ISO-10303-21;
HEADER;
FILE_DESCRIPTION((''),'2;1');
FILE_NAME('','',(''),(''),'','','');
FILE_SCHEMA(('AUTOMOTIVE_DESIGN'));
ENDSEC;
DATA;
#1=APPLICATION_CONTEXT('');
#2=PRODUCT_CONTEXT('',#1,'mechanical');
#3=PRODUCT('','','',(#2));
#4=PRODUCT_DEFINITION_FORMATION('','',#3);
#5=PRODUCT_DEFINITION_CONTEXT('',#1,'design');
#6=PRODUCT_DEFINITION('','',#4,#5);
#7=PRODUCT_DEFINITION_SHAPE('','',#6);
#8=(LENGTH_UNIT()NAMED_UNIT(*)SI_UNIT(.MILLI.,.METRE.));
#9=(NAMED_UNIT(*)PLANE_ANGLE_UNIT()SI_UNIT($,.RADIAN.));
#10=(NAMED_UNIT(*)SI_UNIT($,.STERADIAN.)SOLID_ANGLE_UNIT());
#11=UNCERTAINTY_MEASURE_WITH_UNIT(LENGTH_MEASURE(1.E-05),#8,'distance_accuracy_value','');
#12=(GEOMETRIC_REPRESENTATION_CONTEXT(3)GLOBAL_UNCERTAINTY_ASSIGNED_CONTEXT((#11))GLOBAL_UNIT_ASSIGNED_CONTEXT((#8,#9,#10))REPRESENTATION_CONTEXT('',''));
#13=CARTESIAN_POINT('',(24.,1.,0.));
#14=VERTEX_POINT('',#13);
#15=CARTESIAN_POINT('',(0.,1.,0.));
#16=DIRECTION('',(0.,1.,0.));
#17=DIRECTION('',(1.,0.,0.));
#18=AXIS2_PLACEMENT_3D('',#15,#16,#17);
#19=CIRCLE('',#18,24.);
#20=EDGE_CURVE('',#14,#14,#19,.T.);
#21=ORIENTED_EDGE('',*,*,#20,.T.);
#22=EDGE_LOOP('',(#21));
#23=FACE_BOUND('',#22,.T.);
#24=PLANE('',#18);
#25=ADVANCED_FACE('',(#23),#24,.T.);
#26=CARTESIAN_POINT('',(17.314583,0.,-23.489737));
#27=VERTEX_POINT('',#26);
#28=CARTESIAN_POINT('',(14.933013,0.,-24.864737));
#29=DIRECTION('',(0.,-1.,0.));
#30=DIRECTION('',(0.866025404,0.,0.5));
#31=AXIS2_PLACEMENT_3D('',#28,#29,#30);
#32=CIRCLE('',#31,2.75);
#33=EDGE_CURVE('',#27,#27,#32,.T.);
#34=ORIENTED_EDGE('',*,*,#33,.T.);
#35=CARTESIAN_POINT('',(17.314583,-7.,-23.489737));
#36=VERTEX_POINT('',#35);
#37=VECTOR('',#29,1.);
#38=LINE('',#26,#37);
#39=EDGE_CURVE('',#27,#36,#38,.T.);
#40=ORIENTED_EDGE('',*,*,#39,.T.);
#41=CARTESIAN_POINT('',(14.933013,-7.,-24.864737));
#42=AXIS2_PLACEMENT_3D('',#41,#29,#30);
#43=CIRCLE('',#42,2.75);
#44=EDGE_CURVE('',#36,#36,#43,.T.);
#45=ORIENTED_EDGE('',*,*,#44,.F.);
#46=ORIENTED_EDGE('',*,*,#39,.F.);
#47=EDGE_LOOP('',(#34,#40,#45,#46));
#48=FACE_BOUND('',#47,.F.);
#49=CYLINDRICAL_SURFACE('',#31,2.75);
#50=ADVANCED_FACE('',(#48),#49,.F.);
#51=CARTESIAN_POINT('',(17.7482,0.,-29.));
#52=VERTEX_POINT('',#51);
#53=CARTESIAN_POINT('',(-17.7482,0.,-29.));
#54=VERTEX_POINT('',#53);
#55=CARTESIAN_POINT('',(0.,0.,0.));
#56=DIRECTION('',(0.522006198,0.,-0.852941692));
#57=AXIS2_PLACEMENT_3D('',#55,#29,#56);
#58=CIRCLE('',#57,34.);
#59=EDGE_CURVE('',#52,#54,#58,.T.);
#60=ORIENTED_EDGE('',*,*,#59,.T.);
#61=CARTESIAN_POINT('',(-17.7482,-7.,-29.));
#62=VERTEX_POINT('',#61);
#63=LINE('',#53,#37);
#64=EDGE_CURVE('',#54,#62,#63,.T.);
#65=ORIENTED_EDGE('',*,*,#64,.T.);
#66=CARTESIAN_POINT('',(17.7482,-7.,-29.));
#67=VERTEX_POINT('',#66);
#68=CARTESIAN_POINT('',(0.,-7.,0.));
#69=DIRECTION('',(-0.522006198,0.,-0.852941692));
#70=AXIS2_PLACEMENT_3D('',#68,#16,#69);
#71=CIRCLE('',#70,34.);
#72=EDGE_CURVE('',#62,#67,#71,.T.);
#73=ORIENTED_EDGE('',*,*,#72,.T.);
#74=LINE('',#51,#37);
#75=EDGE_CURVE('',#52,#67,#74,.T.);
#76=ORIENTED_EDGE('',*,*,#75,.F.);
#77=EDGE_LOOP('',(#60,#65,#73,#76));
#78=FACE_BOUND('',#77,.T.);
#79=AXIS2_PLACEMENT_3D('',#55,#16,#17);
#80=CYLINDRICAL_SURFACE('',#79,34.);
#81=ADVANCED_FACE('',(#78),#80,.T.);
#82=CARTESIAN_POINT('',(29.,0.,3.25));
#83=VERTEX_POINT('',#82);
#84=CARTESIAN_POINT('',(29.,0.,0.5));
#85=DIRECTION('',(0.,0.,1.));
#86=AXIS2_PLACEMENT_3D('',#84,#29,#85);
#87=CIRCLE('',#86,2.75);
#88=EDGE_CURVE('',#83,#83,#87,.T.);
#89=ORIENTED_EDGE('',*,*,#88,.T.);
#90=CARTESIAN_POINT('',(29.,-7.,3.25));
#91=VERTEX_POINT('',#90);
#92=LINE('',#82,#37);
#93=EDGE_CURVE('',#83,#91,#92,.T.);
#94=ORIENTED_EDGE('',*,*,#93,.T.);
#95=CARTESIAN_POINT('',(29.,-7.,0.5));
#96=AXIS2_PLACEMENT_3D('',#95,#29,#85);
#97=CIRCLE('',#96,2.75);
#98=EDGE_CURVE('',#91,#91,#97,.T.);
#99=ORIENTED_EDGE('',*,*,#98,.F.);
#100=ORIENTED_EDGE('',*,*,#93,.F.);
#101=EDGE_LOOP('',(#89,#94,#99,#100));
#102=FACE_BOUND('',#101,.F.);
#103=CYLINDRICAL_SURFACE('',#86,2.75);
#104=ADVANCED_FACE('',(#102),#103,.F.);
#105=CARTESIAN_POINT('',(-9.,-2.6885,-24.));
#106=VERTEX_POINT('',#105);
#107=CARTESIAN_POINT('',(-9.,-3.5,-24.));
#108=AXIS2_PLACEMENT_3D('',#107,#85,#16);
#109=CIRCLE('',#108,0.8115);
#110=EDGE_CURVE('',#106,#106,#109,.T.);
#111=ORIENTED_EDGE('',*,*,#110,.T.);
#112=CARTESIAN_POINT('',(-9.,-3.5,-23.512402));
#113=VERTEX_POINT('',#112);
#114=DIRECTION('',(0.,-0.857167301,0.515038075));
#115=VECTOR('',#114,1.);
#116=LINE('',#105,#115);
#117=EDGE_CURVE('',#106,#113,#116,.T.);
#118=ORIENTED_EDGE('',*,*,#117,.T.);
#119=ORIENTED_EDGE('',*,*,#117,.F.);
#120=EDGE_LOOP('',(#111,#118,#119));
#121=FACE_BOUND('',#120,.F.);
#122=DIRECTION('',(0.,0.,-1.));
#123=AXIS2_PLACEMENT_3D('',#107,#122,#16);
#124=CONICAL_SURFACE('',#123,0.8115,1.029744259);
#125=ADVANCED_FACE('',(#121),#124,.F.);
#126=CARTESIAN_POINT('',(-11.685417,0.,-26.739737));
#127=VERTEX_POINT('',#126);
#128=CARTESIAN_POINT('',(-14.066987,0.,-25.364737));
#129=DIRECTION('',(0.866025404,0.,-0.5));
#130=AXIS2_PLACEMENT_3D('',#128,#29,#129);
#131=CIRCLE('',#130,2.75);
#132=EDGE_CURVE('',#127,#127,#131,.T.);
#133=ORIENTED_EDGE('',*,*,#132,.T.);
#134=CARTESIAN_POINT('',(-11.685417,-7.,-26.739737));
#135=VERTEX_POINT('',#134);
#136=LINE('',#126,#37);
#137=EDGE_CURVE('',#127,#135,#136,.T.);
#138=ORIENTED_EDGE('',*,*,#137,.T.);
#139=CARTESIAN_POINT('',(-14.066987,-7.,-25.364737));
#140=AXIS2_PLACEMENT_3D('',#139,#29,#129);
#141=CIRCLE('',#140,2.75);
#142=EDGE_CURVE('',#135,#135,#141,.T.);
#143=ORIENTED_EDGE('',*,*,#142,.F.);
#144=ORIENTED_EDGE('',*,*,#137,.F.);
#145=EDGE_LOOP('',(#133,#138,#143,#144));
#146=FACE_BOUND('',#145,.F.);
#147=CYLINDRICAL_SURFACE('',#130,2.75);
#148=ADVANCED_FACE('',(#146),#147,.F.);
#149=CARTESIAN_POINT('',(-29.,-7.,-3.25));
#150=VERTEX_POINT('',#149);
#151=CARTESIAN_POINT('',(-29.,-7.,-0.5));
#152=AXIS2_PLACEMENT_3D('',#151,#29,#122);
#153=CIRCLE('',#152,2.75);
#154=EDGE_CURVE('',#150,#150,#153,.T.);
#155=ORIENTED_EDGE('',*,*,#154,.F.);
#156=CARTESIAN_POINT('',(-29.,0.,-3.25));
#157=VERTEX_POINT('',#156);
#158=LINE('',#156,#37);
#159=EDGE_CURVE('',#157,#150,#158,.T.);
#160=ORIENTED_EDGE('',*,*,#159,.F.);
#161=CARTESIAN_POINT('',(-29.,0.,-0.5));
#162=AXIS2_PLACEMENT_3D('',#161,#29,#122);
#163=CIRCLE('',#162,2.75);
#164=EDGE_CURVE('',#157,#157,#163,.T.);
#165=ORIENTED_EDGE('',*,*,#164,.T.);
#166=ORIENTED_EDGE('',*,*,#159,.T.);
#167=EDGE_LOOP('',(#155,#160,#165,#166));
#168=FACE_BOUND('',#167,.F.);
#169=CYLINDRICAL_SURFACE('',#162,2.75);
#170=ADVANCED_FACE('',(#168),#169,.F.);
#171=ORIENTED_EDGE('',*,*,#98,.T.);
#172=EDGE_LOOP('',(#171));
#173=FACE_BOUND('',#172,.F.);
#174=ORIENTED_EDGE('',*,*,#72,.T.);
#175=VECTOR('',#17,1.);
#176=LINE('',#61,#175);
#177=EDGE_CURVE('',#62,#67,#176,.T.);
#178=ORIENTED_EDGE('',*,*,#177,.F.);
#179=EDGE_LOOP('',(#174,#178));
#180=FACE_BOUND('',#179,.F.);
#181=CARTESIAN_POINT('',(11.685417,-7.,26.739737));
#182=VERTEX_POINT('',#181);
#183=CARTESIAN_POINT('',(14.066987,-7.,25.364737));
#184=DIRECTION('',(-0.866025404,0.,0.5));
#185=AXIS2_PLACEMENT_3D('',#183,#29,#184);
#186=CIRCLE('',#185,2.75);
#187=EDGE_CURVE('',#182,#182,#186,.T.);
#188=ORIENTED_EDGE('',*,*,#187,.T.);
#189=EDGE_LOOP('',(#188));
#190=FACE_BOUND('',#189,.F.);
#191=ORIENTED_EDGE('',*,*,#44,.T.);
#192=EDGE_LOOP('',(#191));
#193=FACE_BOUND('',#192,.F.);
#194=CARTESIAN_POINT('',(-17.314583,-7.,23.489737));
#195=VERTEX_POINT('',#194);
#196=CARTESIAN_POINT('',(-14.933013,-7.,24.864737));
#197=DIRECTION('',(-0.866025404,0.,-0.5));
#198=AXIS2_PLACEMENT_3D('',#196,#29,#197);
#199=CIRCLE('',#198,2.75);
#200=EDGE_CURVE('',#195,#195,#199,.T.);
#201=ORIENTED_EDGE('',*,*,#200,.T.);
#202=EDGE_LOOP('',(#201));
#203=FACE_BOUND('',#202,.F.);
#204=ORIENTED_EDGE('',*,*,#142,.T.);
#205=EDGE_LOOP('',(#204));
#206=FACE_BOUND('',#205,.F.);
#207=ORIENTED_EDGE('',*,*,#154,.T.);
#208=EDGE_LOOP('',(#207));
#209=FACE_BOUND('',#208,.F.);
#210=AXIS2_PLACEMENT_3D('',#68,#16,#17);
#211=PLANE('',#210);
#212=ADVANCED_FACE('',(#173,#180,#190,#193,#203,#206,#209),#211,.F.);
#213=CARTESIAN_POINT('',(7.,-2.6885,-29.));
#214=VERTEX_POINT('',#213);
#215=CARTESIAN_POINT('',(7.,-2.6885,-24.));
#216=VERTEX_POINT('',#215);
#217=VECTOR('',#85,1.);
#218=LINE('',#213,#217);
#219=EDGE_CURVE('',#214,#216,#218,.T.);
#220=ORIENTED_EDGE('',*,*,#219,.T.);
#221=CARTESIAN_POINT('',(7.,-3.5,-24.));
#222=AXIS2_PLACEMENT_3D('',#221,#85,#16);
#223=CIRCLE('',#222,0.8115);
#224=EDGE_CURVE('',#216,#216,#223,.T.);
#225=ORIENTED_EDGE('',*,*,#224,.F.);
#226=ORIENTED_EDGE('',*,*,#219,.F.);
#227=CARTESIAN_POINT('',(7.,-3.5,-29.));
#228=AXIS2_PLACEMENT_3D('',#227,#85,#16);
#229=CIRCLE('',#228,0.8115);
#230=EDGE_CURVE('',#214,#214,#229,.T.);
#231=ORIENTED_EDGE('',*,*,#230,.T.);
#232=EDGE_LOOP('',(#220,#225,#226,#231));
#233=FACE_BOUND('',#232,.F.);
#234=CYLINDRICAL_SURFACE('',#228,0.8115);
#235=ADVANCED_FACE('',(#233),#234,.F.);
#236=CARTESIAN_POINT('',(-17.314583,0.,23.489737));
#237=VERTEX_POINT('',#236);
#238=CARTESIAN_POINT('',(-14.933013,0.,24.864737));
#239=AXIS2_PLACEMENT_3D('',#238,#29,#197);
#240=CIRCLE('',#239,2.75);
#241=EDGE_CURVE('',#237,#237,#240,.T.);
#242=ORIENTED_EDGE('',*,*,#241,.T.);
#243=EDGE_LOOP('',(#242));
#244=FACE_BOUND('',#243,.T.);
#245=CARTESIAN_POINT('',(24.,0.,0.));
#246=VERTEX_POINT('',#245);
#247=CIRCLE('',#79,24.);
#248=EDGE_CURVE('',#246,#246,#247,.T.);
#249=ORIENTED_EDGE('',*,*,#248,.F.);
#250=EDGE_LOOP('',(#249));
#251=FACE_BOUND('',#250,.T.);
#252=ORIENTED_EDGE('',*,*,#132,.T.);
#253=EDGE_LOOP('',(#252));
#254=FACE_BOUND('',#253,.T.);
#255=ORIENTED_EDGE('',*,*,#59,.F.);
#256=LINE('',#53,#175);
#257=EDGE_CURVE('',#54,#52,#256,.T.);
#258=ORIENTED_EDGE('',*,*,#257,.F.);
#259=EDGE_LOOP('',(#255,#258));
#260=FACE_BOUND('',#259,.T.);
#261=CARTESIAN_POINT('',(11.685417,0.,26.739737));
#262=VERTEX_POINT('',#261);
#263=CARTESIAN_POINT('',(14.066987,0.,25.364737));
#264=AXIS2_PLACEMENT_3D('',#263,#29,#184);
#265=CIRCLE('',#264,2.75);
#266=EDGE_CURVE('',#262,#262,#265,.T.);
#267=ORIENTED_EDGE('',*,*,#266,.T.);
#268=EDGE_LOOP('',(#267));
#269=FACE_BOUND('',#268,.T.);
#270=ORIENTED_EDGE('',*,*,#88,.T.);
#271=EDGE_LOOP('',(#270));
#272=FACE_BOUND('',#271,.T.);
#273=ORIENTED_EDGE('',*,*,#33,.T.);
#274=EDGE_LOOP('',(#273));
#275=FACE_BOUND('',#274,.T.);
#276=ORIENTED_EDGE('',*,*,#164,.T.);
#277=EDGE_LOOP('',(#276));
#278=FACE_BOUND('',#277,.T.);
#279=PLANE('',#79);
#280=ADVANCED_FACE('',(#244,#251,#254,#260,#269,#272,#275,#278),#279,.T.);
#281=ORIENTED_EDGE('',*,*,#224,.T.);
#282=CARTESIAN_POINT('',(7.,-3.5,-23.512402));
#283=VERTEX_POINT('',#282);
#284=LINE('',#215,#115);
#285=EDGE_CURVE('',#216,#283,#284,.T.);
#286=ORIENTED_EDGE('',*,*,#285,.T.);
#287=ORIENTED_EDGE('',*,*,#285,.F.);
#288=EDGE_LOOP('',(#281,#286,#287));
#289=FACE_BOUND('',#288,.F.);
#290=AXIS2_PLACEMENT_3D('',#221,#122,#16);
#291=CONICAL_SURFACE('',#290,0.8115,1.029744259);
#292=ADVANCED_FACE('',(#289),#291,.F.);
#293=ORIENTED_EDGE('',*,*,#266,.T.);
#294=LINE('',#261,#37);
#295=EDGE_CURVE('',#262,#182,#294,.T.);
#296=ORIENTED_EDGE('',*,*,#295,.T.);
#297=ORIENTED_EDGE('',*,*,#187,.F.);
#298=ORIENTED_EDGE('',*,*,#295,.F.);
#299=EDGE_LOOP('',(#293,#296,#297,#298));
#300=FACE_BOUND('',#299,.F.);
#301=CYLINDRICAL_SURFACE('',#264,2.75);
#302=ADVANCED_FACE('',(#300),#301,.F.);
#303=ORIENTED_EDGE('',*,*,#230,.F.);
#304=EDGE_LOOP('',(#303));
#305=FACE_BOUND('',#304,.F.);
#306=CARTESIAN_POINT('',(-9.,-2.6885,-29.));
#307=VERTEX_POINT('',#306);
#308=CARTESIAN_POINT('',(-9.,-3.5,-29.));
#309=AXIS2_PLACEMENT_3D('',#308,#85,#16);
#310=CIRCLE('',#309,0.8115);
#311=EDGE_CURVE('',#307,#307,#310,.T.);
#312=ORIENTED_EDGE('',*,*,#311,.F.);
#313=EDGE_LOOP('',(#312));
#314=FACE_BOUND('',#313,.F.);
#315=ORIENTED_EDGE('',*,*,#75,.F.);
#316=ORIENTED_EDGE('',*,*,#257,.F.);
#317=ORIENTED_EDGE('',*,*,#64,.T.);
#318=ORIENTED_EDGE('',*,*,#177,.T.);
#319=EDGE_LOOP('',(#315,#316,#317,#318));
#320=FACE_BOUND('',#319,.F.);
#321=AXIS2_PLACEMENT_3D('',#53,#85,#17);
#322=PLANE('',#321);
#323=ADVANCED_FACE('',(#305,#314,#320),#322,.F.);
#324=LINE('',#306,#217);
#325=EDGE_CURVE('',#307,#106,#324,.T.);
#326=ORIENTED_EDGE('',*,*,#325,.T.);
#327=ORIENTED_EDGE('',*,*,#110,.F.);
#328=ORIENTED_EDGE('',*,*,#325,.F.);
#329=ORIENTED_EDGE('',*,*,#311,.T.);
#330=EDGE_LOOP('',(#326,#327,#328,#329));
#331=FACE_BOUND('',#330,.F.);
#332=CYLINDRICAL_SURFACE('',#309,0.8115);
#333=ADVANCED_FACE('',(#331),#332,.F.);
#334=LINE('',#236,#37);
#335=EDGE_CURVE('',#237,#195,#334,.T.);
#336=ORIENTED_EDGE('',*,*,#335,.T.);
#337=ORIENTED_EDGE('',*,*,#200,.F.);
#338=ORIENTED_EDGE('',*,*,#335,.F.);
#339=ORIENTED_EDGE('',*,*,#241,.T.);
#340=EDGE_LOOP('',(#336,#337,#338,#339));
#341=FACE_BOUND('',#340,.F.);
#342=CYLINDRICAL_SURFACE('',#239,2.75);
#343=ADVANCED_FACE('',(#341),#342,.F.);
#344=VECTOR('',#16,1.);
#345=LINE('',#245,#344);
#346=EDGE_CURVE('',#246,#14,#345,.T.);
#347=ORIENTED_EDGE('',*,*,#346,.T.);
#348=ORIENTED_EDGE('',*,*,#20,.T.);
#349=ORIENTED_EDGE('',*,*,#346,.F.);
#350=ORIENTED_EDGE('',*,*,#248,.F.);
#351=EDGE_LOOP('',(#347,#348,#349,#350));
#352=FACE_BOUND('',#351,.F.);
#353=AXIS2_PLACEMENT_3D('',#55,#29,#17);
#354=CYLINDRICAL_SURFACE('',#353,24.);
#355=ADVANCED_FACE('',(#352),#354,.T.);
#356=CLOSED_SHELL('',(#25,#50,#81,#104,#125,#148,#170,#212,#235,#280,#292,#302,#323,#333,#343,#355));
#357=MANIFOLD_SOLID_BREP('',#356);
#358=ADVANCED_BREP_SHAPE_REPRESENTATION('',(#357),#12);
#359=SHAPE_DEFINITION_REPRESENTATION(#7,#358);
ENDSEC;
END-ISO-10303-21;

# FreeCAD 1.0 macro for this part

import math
import FreeCAD as App
import Part
import Sketcher

V = App.Vector

doc = App.newDocument("Part")
params = doc.addObject("Spreadsheet::Sheet", "Params")
for row, (alias, value) in enumerate([
    ("sketch1_radius", "34 mm"),
    ("pad1_length", "7 mm"),
    ("sketch2_diameter", "48 mm"),
    ("pad2_length", "1 mm"),
    ("sketch3_diameter", "5.5 mm"),
    ("hole_diameter", "5.5 mm"),
    ("hole2_diameter", "1.623 mm"),
    ("hole2_depth", "5 mm"),
], start=1):
    params.set(f"A{row}", alias)
    params.set(f"B{row}", "=" + value)
    params.setAlias(f"B{row}", alias)

body = doc.addObject("PartDesign::Body", "Body")

sketch1 = body.newObject("Sketcher::SketchObject", "Sketch")
sketch1.AttachmentSupport = (doc.getObject("XZ_Plane"), [""])
sketch1.MapMode = "FlatFace"
sketch1.addGeometry([
    Part.ArcOfCircle(Part.Circle(V(0, 0, 0), V(0, 0, 1), 34), math.radians(-59), math.radians(239)),
    Part.LineSegment(V(-18, -29, 0), V(18, -29, 0)),
], False)
sketch1.addConstraint([
    Sketcher.Constraint("Coincident", 0, 1, 1, 2),
    Sketcher.Constraint("Coincident", 1, 1, 0, 2),
    Sketcher.Constraint("Horizontal", 1),
    Sketcher.Constraint("Coincident", 0, 3, -1, 1),
    Sketcher.Constraint("Radius", 0, 34.0),
    Sketcher.Constraint("DistanceY", 0, 1, -1, 1, 29.0),
])
sketch1.setExpression("Constraints[4]", "Params.sketch1_radius")
pad1 = body.newObject("PartDesign::Pad", "Pad")
pad1.Profile = sketch1
pad1.setExpression("Length", "Params.pad1_length")

sketch2 = body.newObject("Sketcher::SketchObject", "Sketch001")
sketch2.AttachmentSupport = (doc.getObject("XZ_Plane"), [""])
sketch2.MapMode = "FlatFace"
sketch2.addGeometry(Part.Circle(V(0, 0, 0), V(0, 0, 1), 24), False)
sketch2.addConstraint([
    Sketcher.Constraint("Coincident", 0, 3, -1, 1),
    Sketcher.Constraint("Diameter", 0, 48.0),
])
sketch2.setExpression("Constraints[1]", "Params.sketch2_diameter")
pad2 = body.newObject("PartDesign::Pad", "Pad001")
pad2.Profile = sketch2
pad2.setExpression("Length", "Params.pad2_length")
pad2.Reversed = True

sketch3 = body.newObject("Sketcher::SketchObject", "Sketch002")
sketch3.AttachmentSupport = (doc.getObject("XZ_Plane"), [""])
sketch3.MapMode = "FlatFace"
sketch3.addGeometry(Part.Circle(V(29, 0.5, 0), V(0, 0, 1), 2.8), False)
sketch3.addConstraint([
    Sketcher.Constraint("Diameter", 0, 5.5),
    Sketcher.Constraint("DistanceX", -1, 1, 0, 3, 29.0),
    Sketcher.Constraint("DistanceY", -1, 1, 0, 3, 0.5),
])
sketch3.setExpression("Constraints[0]", "Params.sketch3_diameter")
doc.recompute()
hole = body.newObject("PartDesign::Hole", "Hole")
hole.Profile = sketch3
hole.ThreadType = "None"
hole.setExpression("Diameter", "Params.hole_diameter")
hole.DepthType = "ThroughAll"
hole.Reversed = True
doc.recompute()

polarpattern = body.newObject("PartDesign::PolarPattern", "PolarPattern")
polarpattern.Originals = [hole]
polarpattern.Axis = (doc.getObject("Y_Axis"), [""])
polarpattern.Angle = 360
polarpattern.Occurrences = 6
body.Tip = polarpattern

sketch4 = body.newObject("Sketcher::SketchObject", "Sketch003")
sketch4.AttachmentSupport = (doc.getObject("XY_Plane"), [""])
sketch4.MapMode = "FlatFace"
sketch4.AttachmentOffset = App.Placement(V(0, 0, -29), App.Rotation())
sketch4.addGeometry([
    Part.Circle(V(-9, -3.5, 0), V(0, 0, 1), 0.8),
    Part.Circle(V(7, -3.5, 0), V(0, 0, 1), 0.8),
], False)
sketch4.addConstraint([
    Sketcher.Constraint("Equal", 0, 1),
    Sketcher.Constraint("Horizontal", 0, 3, 1, 3),
    Sketcher.Constraint("Diameter", 0, 1.623),
    Sketcher.Constraint("DistanceX", 0, 3, -1, 1, 9.0),
    Sketcher.Constraint("DistanceX", -1, 1, 1, 3, 7.0),
    Sketcher.Constraint("DistanceY", 0, 3, -1, 1, 3.5),
])
doc.recompute()
hole2 = body.newObject("PartDesign::Hole", "Hole001")
hole2.Profile = sketch4
hole2.ThreadType = "None"
hole2.setExpression("Diameter", "Params.hole2_diameter")
hole2.DepthType = "Dimension"
hole2.setExpression("Depth", "Params.hole2_depth")
hole2.DrillPoint = "Angled"
hole2.DrillPointAngle = 118
hole2.Reversed = True

doc.recompute()
